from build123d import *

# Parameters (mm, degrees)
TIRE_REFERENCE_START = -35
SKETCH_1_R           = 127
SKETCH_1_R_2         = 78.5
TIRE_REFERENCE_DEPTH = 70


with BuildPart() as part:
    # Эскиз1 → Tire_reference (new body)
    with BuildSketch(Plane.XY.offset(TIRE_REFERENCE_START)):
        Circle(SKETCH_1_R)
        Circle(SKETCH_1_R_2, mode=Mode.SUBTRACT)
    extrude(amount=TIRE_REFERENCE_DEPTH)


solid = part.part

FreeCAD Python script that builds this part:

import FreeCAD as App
import Part
import Sketcher

doc = App.newDocument("Part")
body = doc.addObject("PartDesign::Body", "Body")

sketch1 = body.newObject("Sketcher::SketchObject", "Sketch")
sketch1.AttachmentSupport = (doc.getObject("XY_Plane"), [""])
sketch1.MapMode = "FlatFace"
sketch1.AttachmentOffset = App.Placement(App.Vector(0, 0, -35), App.Rotation())
sketch1.addGeometry(Part.Circle(App.Vector(0, 0, 0), App.Vector(0, 0, 1), 127), False)
sketch1.addGeometry(Part.Circle(App.Vector(0, 0, 0), App.Vector(0, 0, 1), 78), False)
sketch1.addConstraint(Sketcher.Constraint("Coincident", 0, 3, -1, 1))
sketch1.addConstraint(Sketcher.Constraint("Coincident", 1, 3, -1, 1))
sketch1.addConstraint(Sketcher.Constraint("Diameter", 0, 254.0))
sketch1.addConstraint(Sketcher.Constraint("Diameter", 1, 157.0))
pad1 = body.newObject("PartDesign::Pad", "Pad")
pad1.Profile = sketch1
pad1.Length = 70

doc.recompute()
